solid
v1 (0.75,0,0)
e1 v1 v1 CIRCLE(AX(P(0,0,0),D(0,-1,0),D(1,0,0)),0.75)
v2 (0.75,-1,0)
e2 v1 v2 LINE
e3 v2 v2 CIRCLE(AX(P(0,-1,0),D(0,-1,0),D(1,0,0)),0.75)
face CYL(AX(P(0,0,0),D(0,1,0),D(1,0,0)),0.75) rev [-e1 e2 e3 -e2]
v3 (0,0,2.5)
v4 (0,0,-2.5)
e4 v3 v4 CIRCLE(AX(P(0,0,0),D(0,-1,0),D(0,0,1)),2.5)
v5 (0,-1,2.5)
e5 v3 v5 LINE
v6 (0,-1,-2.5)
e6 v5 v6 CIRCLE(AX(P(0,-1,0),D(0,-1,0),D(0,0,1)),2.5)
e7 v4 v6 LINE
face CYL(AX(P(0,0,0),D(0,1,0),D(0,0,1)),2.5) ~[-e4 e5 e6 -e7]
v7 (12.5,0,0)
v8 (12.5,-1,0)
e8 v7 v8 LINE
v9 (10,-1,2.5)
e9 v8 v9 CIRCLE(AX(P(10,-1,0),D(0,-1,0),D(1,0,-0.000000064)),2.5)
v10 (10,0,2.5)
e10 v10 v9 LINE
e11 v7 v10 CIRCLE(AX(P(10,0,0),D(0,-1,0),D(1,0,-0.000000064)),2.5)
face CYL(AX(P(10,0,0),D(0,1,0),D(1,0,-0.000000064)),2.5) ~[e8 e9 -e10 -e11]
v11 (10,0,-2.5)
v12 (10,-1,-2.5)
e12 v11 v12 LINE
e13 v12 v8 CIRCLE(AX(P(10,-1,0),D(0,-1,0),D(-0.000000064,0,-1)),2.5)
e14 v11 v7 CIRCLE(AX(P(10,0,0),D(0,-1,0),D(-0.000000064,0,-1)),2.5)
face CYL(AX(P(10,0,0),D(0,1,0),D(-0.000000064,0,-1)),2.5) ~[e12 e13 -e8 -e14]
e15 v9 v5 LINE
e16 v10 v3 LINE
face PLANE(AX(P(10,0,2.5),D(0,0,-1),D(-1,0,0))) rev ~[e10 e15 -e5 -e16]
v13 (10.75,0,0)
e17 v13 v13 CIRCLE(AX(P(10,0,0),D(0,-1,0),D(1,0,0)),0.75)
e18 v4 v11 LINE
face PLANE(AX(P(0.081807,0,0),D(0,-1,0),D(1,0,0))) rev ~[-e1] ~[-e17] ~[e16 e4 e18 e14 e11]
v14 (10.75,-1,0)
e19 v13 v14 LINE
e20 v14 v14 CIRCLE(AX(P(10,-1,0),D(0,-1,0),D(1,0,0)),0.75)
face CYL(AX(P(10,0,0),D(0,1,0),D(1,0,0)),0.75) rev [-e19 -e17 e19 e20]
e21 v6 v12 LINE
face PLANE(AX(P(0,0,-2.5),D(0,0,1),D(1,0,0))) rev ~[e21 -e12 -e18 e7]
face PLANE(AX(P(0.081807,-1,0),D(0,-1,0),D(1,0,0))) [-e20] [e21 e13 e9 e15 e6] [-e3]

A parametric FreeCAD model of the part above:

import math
import FreeCAD as App
import Part
import Sketcher
from FreeCAD import Vector
Q = App.Units.Quantity

doc = App.newDocument("Part")
body = doc.addObject("PartDesign::Body", "Body")

# Sketch on XZ plane
sketch1 = doc.addObject("Sketcher::SketchObject", "Sketch")
body.addObject(sketch1)
sketch1.AttachmentSupport = (doc.XZ_Plane, [""])
sketch1.MapMode = "FlatFace"
sketch1.addGeometry(Part.ArcOfCircle(Part.Circle(Vector(0, 0, 0), Vector(0, 0, 1), 2.5), math.radians(90), math.radians(270)), False)
sketch1.addGeometry(Part.LineSegment(Vector(0, -2.5, 0), Vector(10, -2.5, 0)), False)
sketch1.addGeometry(Part.ArcOfCircle(Part.Circle(Vector(10, 0, 0), Vector(0, 0, 1), 2.5), math.radians(-90), math.radians(0)), False)
sketch1.addGeometry(Part.ArcOfCircle(Part.Circle(Vector(10, 0, 0), Vector(0, 0, 1), 2.5), math.radians(0), math.radians(90)), False)
sketch1.addGeometry(Part.LineSegment(Vector(10, 2.5, 0), Vector(0, 2.5, 0)), False)
sketch1.addGeometry(Part.Circle(Vector(0, 0, 0), Vector(0, 0, 1), 0.8), False)
sketch1.addGeometry(Part.Circle(Vector(10, 0, 0), Vector(0, 0, 1), 0.8), False)
sketch1.addConstraint(Sketcher.Constraint("Tangent", 0, 2, 1, 1))
sketch1.addConstraint(Sketcher.Constraint("Tangent", 1, 2, 2, 1))
sketch1.addConstraint(Sketcher.Constraint("Tangent", 2, 2, 3, 1))
sketch1.addConstraint(Sketcher.Constraint("Tangent", 3, 2, 4, 1))
sketch1.addConstraint(Sketcher.Constraint("Tangent", 4, 2, 0, 1))
sketch1.addConstraint(Sketcher.Constraint("Horizontal", 1))
sketch1.addConstraint(Sketcher.Constraint("Horizontal", 4))
sketch1.addConstraint(Sketcher.Constraint("Coincident", 0, 3, -1, 1))
sketch1.addConstraint(Sketcher.Constraint("Coincident", 5, 3, -1, 1))
sketch1.addConstraint(Sketcher.Constraint("Coincident", 6, 3, 2, 3))
sketch1.addConstraint(Sketcher.Constraint("Equal", 0, 2))
sketch1.addConstraint(Sketcher.Constraint("Equal", 5, 6))
sketch1.addConstraint(Sketcher.Constraint("PointOnObject", 2, 2, -1))
sketch1.addConstraint(Sketcher.Constraint("Diameter", 5, Q("1.5 mm")))
sketch1.addConstraint(Sketcher.Constraint("Radius", 0, Q("2.5 mm")))
sketch1.addConstraint(Sketcher.Constraint("DistanceX", 1, 1, 1, 2, Q("10 mm")))
pad1 = doc.addObject("PartDesign::Pad", "Pad")
body.addObject(pad1)
pad1.Profile = sketch1
pad1.Length = 1

doc.recompute()
